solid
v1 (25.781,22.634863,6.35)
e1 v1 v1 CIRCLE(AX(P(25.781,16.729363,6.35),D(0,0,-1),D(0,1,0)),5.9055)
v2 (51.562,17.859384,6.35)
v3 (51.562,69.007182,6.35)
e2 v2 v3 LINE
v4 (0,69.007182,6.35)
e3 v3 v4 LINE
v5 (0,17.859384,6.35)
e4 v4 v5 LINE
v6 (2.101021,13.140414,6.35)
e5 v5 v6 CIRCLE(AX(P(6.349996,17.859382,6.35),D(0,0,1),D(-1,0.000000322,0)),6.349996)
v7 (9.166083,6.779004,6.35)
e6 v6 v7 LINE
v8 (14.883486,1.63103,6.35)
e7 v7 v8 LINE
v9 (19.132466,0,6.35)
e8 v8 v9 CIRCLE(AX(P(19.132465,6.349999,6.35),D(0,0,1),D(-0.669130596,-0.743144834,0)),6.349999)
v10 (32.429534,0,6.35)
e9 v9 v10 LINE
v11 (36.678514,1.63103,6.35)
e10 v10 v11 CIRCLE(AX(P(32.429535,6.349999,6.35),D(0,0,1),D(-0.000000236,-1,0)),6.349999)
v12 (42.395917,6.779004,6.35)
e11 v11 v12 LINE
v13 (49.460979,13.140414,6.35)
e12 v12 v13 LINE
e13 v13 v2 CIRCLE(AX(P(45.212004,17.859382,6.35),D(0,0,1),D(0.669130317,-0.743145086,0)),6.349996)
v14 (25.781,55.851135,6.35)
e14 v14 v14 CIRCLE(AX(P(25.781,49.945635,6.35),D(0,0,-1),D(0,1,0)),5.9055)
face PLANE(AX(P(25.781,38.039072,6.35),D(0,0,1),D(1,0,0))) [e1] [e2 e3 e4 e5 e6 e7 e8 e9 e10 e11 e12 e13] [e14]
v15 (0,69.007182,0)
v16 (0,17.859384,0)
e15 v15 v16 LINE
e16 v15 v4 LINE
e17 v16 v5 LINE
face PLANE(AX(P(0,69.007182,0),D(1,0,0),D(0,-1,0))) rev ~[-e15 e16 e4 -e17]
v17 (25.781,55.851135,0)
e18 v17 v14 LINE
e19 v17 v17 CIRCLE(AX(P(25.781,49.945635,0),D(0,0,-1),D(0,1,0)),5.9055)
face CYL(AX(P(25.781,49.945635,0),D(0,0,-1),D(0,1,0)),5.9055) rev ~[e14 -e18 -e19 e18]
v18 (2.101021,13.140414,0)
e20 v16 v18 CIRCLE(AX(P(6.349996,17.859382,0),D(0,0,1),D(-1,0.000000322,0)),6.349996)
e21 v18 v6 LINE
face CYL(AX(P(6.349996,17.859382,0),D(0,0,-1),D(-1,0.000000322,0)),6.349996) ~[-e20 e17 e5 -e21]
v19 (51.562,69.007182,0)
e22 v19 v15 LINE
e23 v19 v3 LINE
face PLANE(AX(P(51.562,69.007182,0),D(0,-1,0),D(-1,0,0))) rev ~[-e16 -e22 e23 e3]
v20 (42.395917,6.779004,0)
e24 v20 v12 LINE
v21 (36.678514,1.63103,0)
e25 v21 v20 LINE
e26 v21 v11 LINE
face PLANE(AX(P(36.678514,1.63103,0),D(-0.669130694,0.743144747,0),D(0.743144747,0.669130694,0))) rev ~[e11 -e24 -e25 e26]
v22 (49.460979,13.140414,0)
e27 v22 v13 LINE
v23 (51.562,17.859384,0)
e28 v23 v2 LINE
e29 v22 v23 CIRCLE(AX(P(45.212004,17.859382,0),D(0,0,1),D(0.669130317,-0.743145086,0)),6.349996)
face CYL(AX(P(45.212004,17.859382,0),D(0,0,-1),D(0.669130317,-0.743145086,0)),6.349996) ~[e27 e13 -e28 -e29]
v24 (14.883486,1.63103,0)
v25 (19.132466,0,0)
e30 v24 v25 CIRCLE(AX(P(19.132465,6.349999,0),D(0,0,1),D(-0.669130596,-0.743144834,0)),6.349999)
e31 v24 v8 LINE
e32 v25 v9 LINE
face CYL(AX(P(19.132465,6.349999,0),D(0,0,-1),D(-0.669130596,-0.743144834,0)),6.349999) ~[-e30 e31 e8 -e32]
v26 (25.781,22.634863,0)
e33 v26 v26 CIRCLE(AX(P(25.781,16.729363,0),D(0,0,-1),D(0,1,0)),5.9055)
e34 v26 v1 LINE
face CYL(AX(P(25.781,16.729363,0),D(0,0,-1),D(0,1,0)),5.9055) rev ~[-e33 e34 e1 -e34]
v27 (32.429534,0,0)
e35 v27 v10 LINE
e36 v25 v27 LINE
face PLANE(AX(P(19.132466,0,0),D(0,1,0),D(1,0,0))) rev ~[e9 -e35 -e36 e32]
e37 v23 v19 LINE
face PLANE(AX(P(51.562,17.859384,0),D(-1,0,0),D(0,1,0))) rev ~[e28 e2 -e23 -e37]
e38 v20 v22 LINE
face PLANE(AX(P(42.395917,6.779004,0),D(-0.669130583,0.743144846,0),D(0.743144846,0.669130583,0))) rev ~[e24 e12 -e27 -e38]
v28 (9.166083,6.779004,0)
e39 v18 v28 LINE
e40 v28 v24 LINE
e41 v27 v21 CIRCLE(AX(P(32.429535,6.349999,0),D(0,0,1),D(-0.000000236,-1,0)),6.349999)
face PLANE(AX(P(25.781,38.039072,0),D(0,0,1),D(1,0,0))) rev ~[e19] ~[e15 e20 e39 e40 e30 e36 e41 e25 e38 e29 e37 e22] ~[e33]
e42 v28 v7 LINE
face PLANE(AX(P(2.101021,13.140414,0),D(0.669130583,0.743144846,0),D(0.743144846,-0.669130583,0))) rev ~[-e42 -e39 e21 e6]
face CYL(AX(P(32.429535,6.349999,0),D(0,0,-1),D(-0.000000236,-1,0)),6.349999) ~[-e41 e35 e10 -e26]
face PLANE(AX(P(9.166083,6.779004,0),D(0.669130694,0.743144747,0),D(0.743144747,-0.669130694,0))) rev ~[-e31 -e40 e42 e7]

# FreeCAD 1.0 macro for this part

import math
import FreeCAD as App
import Part
import Sketcher
Q = App.Units.Quantity

doc = App.newDocument("Part")
body = doc.addObject("PartDesign::Body", "Body")

sketch1 = body.newObject("Sketcher::SketchObject", "Sketch")
sketch1.AttachmentSupport = (doc.getObject("XY_Plane"), [""])
sketch1.MapMode = "FlatFace"
sketch1.addGeometry([
    Part.LineSegment(App.Vector(51.562, 69.007182, 0), App.Vector(0, 69.007182, 0)),
    Part.LineSegment(App.Vector(0, 69.007182, 0), App.Vector(0, 17.859384, 0)),
    Part.ArcOfCircle(Part.Circle(App.Vector(6.349996, 17.859382, 0), App.Vector(0, 0, 1), 6.349996), math.radians(179.999982), math.radians(228.000022)),
    Part.LineSegment(App.Vector(2.101021, 13.140414, 0), App.Vector(9.166083, 6.779004, 0)),
    Part.LineSegment(App.Vector(9.166083, 6.779004, 0), App.Vector(14.883486, 1.63103, 0)),
    Part.ArcOfCircle(Part.Circle(App.Vector(19.132465, 6.349999, 0), App.Vector(0, 0, 1), 6.349999), math.radians(-131.999999), math.radians(-89.999986)),
    Part.LineSegment(App.Vector(19.132466, 0, 0), App.Vector(32.429534, 0, 0)),
    Part.ArcOfCircle(Part.Circle(App.Vector(32.429535, 6.349999, 0), App.Vector(0, 0, 1), 6.349999), math.radians(-90.000014), math.radians(-48.000001)),
    Part.LineSegment(App.Vector(36.678514, 1.63103, 0), App.Vector(42.395917, 6.779004, 0)),
    Part.LineSegment(App.Vector(42.395917, 6.779004, 0), App.Vector(49.460979, 13.140414, 0)),
    Part.ArcOfCircle(Part.Circle(App.Vector(45.212004, 17.859382, 0), App.Vector(0, 0, 1), 6.349996), math.radians(-48.000022), math.radians(0.000018)),
    Part.LineSegment(App.Vector(51.562, 17.859384, 0), App.Vector(51.562, 69.007182, 0)),
    Part.Circle(App.Vector(25.781, 16.729363, 0), App.Vector(0, 0, 1), 5.9055),
    Part.Circle(App.Vector(25.781, 49.945635, 0), App.Vector(0, 0, 1), 5.9055),
], False)
sketch1.addConstraint([
    Sketcher.Constraint("Coincident", 0, 2, 1, 1),
    Sketcher.Constraint("Tangent", 1, 2, 2, 1),
    Sketcher.Constraint("Tangent", 2, 2, 3, 1),
    Sketcher.Constraint("Coincident", 3, 2, 4, 1),
    Sketcher.Constraint("Tangent", 4, 2, 5, 1),
    Sketcher.Constraint("Tangent", 5, 2, 6, 1),
    Sketcher.Constraint("Tangent", 6, 2, 7, 1),
    Sketcher.Constraint("Tangent", 7, 2, 8, 1),
    Sketcher.Constraint("Coincident", 8, 2, 9, 1),
    Sketcher.Constraint("Tangent", 9, 2, 10, 1),
    Sketcher.Constraint("Tangent", 10, 2, 11, 1),
    Sketcher.Constraint("Coincident", 11, 2, 0, 1),
    Sketcher.Constraint("Horizontal", 0),
    Sketcher.Constraint("Vertical", 1),
    Sketcher.Constraint("Horizontal", 6),
    Sketcher.Constraint("Vertical", 11),
    Sketcher.Constraint("Equal", 5, 7),
    Sketcher.Constraint("Equal", 2, 10),
    Sketcher.Constraint("Equal", 12, 13),
    Sketcher.Constraint("PointOnObject", 0, 2, -2),
    Sketcher.Constraint("PointOnObject", 5, 2, -1),
    Sketcher.Constraint("Parallel", 3, 4),
    Sketcher.Constraint("Parallel", 8, 9),
    Sketcher.Constraint("Horizontal", 2, 3, 10, 3),
    Sketcher.Constraint("Horizontal", 4, 2, 7, 2),
    Sketcher.Constraint("Horizontal", 3, 2, 8, 2),
    Sketcher.Constraint("Vertical", 12, 3, 13, 3),
    Sketcher.Constraint("Radius", 2, Q("0.2499998 in")),
    Sketcher.Constraint("Radius", 5, Q("0.25 in")),
    Sketcher.Constraint("Diameter", 12, Q("0.465 in")),
    Sketcher.Constraint("Angle", 3, Q("-41.999998 deg")),
    Sketcher.Constraint("DistanceX", 0, 2, 0, 1, Q("2.03 in")),
    Sketcher.Constraint("DistanceX", -1, 1, 12, 3, Q("1.015 in")),
    Sketcher.Constraint("DistanceY", 1, 2, 1, 1, Q("51.147798 mm")),
    Sketcher.Constraint("Distance", 3, Q("9.506978 mm")),
    Sketcher.Constraint("DistanceX", 6, 1, 6, 2, Q("13.297068 mm")),
    Sketcher.Constraint("DistanceY", 12, 3, 2, 3, Q("1.130019 mm")),
    Sketcher.Constraint("DistanceY", 1, 2, 13, 3, Q("32.086251 mm")),
])
pad1 = body.newObject("PartDesign::Pad", "Pad")
pad1.Profile = sketch1
pad1.Length = Q("0.25 in")

doc.recompute()
